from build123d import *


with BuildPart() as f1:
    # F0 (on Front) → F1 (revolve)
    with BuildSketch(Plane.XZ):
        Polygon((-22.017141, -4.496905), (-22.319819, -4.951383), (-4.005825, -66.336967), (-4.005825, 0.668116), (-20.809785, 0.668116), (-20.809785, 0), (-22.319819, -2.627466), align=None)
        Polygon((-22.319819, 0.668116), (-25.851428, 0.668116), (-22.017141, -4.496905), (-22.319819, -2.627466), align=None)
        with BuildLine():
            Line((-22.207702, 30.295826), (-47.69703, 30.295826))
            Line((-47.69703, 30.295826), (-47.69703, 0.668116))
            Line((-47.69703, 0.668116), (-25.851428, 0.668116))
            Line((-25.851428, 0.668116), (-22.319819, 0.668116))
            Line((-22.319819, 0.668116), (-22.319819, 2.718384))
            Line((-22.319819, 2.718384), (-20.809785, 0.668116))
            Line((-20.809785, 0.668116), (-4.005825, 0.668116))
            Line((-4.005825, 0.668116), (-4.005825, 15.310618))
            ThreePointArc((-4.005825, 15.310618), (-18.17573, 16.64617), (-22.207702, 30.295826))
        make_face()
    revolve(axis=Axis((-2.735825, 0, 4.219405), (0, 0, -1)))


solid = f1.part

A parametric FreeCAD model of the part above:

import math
import FreeCAD as App
import Part
import Sketcher
from FreeCAD import Vector
Q = App.Units.Quantity


def add_polygon(sketch, points):
    """Adds a closed chain of lines whose ends are joined by coincident constraints."""
    first, n = sketch.GeometryCount, len(points)
    for a, b in zip(points, points[1:] + points[:1]):
        sketch.addGeometry(Part.LineSegment(App.Vector(*a, 0), App.Vector(*b, 0)), False)
    for i in range(n):
        sketch.addConstraint(Sketcher.Constraint("Coincident", first + i, 2, first + (i + 1) % n, 1))

doc = App.newDocument("Part")
body = doc.addObject("PartDesign::Body", "Body")

# Sketch on XZ plane
sketch1 = body.newObject("Sketcher::SketchObject", "Sketch")
sketch1.AttachmentSupport = (doc.getObject("XZ_Plane"), [""])
sketch1.MapMode = "FlatFace"
sketch1.addGeometry(Part.LineSegment(Vector(-22, -4.5, 0), Vector(-22.3, -5, 0)), False)  # 0
sketch1.addGeometry(Part.LineSegment(Vector(-22.3, -5, 0), Vector(-4, -66.3, 0)), False)  # 1
sketch1.addGeometry(Part.LineSegment(Vector(-4, -66.3, 0), Vector(-4, 15.3, 0)), False)  # 2
sketch1.addGeometry(Part.ArcOfCircle(Part.Circle(Vector(-10.1, 26.5, 0), Vector(0, 0, 1), 12.7), math.radians(162), math.radians(299)), False)  # 3
sketch1.addGeometry(Part.LineSegment(Vector(-22.2, 30.3, 0), Vector(-47.7, 30.3, 0)), False)  # 4
sketch1.addGeometry(Part.LineSegment(Vector(-47.7, 30.3, 0), Vector(-47.7, 0.7, 0)), False)  # 5
sketch1.addGeometry(Part.LineSegment(Vector(-47.7, 0.7, 0), Vector(-25.9, 0.7, 0)), False)  # 6
sketch1.addGeometry(Part.LineSegment(Vector(-25.9, 0.7, 0), Vector(-22, -4.5, 0)), False)  # 7
add_polygon(sketch1, [(-20.8, 0.7), (-20.8, 0), (-22.3, -2.6), (-22.3, 2.7)])  # lines 8-11
sketch1.addGeometry(Part.LineSegment(Vector(-2.7, 30.3, 0), Vector(-2.7, -66.3, 0)), True)  # axis
sketch1.addConstraint([
    Sketcher.Constraint("Coincident", 0, 2, 1, 1),
    Sketcher.Constraint("Coincident", 1, 2, 2, 1),
    Sketcher.Constraint("Coincident", 2, 2, 3, 2),
    Sketcher.Constraint("Coincident", 3, 1, 4, 1),
    Sketcher.Constraint("Coincident", 4, 2, 5, 1),
    Sketcher.Constraint("Coincident", 5, 2, 6, 1),
    Sketcher.Constraint("Coincident", 6, 2, 7, 1),
    Sketcher.Constraint("Coincident", 7, 2, 0, 1),
    Sketcher.Constraint("Vertical", 2),
    Sketcher.Constraint("Horizontal", 4),
    Sketcher.Constraint("Vertical", 5),
    Sketcher.Constraint("Horizontal", 6),
    Sketcher.Constraint("Vertical", 8),
    Sketcher.Constraint("Vertical", 10),
    Sketcher.Constraint("Vertical", 12),
    Sketcher.Constraint("PointOnObject", 8, 2, -1),
    Sketcher.Constraint("Horizontal", 6, 2, 11, 2),
    Sketcher.Constraint("Horizontal", 4, 2, 12, 1),
    Sketcher.Constraint("Horizontal", 1, 2, 12, 2),
    Sketcher.Constraint("Vertical", 0, 2, 9, 2),
    Sketcher.Constraint("Radius", 3, Q("0.5 in")),
    Sketcher.Constraint("DistanceX", 2, 2, 12, 1, Q("0.05 in")),
    Sketcher.Constraint("DistanceX", 6, 1, 6, 2, 21.845602),
    Sketcher.Constraint("DistanceY", 7, 2, 9, 2, Q("0.0736 in")),
    Sketcher.Constraint("DistanceY", 5, 2, 5, 1, 29.62771),
    Sketcher.Constraint("DistanceY", 10, 1, 10, 2, 5.34585),
    Sketcher.Constraint("DistanceX", 3, 1, -1, 1, 22.207702),
    Sketcher.Constraint("DistanceY", 0, 2, 2, 2, 20.262001),
    Sketcher.Constraint("DistanceY", 0, 2, 5, 2, 5.619499),
    Sketcher.Constraint("DistanceY", 12, 2, 9, 2, 63.709501),
    Sketcher.Constraint("Distance", 11, 2.546331),
    Sketcher.Constraint("DistanceX", 4, 2, 4, 1, 25.489328),
    Sketcher.Constraint("DistanceY", 2, 1, 2, 2, 81.647585),
    Sketcher.Constraint("DistanceY", 8, 2, 8, 1, 0.668116),
    Sketcher.Constraint("DistanceX", 0, 2, -1, 1, 22.319819),
    Sketcher.Constraint("DistanceX", 7, 2, -1, 1, 22.017141),
    Sketcher.Constraint("DistanceX", 3, 3, 1, 2, 6.097891),
])
revolution = body.newObject("PartDesign::Revolution", "Revolution")
revolution.Profile = sketch1
revolution.ReferenceAxis = (sketch1, ["Axis0"])
revolution.Angle = 360

doc.recompute()
